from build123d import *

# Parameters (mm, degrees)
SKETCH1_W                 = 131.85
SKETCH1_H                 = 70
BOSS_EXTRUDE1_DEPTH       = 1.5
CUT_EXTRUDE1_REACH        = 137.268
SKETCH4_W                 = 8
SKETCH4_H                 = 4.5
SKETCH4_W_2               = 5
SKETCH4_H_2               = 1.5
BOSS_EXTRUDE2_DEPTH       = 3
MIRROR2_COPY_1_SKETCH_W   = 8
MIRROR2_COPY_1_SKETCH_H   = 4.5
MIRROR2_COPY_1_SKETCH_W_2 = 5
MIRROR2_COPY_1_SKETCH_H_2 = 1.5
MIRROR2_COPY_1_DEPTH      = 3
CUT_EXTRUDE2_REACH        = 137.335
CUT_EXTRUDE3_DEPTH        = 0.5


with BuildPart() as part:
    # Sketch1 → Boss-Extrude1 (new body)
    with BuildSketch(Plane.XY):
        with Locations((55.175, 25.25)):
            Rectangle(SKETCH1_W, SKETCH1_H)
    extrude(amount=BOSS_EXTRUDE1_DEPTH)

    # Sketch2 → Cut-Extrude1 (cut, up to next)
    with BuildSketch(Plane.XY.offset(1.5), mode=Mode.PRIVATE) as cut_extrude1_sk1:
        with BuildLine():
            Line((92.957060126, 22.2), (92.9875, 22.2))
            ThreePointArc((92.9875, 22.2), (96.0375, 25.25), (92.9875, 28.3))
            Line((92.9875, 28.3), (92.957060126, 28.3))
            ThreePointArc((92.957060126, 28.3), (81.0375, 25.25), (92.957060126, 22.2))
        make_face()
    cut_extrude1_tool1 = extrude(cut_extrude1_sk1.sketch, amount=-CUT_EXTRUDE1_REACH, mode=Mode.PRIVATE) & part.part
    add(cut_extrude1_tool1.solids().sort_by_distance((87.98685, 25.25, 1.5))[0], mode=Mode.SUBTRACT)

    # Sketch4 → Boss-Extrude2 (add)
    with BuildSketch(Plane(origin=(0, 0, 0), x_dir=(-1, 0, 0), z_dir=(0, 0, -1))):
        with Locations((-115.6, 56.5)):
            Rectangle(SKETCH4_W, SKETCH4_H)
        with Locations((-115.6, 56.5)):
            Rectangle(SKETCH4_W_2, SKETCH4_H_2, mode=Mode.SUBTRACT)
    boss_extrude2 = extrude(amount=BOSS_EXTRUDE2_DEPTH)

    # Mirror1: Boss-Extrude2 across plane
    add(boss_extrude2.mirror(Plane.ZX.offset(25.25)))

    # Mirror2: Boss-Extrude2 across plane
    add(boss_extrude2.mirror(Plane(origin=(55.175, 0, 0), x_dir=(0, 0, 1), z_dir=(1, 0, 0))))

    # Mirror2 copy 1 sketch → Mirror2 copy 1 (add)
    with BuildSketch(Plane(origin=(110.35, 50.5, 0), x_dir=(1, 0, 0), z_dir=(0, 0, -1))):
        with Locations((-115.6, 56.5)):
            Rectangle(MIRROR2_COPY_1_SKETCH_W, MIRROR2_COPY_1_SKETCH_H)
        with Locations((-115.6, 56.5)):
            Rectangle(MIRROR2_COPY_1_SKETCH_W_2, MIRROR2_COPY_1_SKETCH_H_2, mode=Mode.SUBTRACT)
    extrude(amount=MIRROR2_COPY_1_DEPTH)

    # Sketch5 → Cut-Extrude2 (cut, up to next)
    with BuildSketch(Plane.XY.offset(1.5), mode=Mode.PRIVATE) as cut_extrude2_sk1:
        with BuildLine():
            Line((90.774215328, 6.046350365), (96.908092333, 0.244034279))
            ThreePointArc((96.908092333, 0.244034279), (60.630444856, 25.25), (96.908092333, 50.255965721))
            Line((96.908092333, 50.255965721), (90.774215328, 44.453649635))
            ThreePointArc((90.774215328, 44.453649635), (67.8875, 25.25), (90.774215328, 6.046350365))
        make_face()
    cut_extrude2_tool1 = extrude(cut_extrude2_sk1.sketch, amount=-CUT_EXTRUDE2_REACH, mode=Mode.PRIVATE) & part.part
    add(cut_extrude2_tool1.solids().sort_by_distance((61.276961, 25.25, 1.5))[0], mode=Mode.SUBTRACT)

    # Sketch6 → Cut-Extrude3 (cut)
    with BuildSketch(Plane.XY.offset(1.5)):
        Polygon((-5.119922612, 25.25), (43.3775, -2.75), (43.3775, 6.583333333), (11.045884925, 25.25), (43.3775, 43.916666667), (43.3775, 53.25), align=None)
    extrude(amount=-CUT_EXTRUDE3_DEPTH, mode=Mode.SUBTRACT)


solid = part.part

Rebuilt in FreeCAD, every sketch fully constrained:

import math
import FreeCAD as App
import Part
import Sketcher
from FreeCAD import Vector
Q = App.Units.Quantity

doc = App.newDocument("Part")
params = doc.addObject("Spreadsheet::Sheet", "Params")
for row, (alias, value) in enumerate([
    ("sketch1_height", "70 mm"),
    ("sketch1_width", "131.85 mm"),
    ("pad1_length", "1.5 mm"),
    ("sketch2_radius", "3.05 mm"),
    ("sketch2_radius2", "6.35 mm"),
    ("sketch3_width", "8 mm"),
    ("sketch3_width2", "5 mm"),
    ("sketch3_height", "4.5 mm"),
    ("sketch3_height2", "1.5 mm"),
    ("pad2_length", "3 mm"),
    ("sketch4_width", "8 mm"),
    ("sketch4_width2", "5 mm"),
    ("sketch4_height", "4.5 mm"),
    ("sketch4_height2", "1.5 mm"),
    ("pad3_length", "3 mm"),
    ("sketch5_radius", "19.5 mm"),
    ("sketch6_length", "56 mm"),
    ("pocket3_length", "0.5 mm"),
], start=1):
    params.set(f"A{row}", alias)
    params.set(f"B{row}", "=" + value)
    params.setAlias(f"B{row}", alias)

body = doc.addObject("PartDesign::Body", "Body")

sketch1 = body.newObject("Sketcher::SketchObject", "Sketch")
sketch1.AttachmentSupport = (doc.getObject("XY_Plane"), [""])
sketch1.MapMode = "FlatFace"
sketch1.addGeometry([
    Part.LineSegment(Vector(-10.75, 60.25, 0), Vector(-10.75, -9.75, 0)),
    Part.LineSegment(Vector(-10.75, -9.75, 0), Vector(121.1, -9.75, 0)),
    Part.LineSegment(Vector(121.1, -9.75, 0), Vector(121.1, 60.25, 0)),
    Part.LineSegment(Vector(121.1, 60.25, 0), Vector(-10.75, 60.25, 0)),
], False)
sketch1.addConstraint([
    Sketcher.Constraint("Coincident", 0, 2, 1, 1),
    Sketcher.Constraint("Coincident", 1, 2, 2, 1),
    Sketcher.Constraint("Coincident", 2, 2, 3, 1),
    Sketcher.Constraint("Coincident", 3, 2, 0, 1),
    Sketcher.Constraint("Vertical", 0),
    Sketcher.Constraint("Horizontal", 1),
    Sketcher.Constraint("Vertical", 2),
    Sketcher.Constraint("Horizontal", 3),
    Sketcher.Constraint("DistanceY", 0, 2, 0, 1, 70.0),
    Sketcher.Constraint("DistanceX", 1, 1, 1, 2, 131.85),
    Sketcher.Constraint("DistanceX", -1, 1, 1, 2, 121.1),
    Sketcher.Constraint("DistanceY", 0, 2, -1, 1, 9.75),
])
sketch1.setExpression("Constraints[8]", "Params.sketch1_height")
sketch1.setExpression("Constraints[9]", "Params.sketch1_width")
pad1 = body.newObject("PartDesign::Pad", "Pad")
pad1.Profile = sketch1
pad1.setExpression("Length", "Params.pad1_length")

sketch2 = body.newObject("Sketcher::SketchObject", "Sketch001")
sketch2.AttachmentSupport = (doc.getObject("XY_Plane"), [""])
sketch2.MapMode = "FlatFace"
sketch2.AttachmentOffset = App.Placement(Vector(0, 0, 1.5), App.Rotation())
sketch2.addGeometry([
    Part.LineSegment(Vector(92.95706, 22.2, 0), Vector(92.9875, 22.2, 0)),
    Part.ArcOfCircle(Part.Circle(Vector(92.9875, 25.25, 0), Vector(0, 0, 1), 3.05), math.radians(-90), math.radians(90)),
    Part.LineSegment(Vector(92.9875, 28.3, 0), Vector(92.95706, 28.3, 0)),
    Part.ArcOfCircle(Part.Circle(Vector(87.3875, 25.25, 0), Vector(0, 0, 1), 6.35), math.radians(28.705975), math.radians(331.294025)),
], False)
sketch2.addConstraint([
    Sketcher.Constraint("Tangent", 0, 2, 1, 1),
    Sketcher.Constraint("Tangent", 1, 2, 2, 1),
    Sketcher.Constraint("Coincident", 2, 2, 3, 1),
    Sketcher.Constraint("Coincident", 3, 2, 0, 1),
    Sketcher.Constraint("Horizontal", 0),
    Sketcher.Constraint("Horizontal", 2),
    Sketcher.Constraint("Horizontal", 1, 3, 3, 3),
    Sketcher.Constraint("Radius", 1, 3.05),
    Sketcher.Constraint("Radius", 3, 6.35),
    Sketcher.Constraint("DistanceY", -1, 1, 0, 2, 22.2),
    Sketcher.Constraint("DistanceX", 3, 3, 1, 3, 5.6),
    Sketcher.Constraint("DistanceX", -1, 1, 1, 3, 92.9875),
])
sketch2.setExpression("Constraints[7]", "Params.sketch2_radius")
sketch2.setExpression("Constraints[8]", "Params.sketch2_radius2")
pocket1 = body.newObject("PartDesign::Pocket", "Pocket")
pocket1.Profile = sketch2
pocket1.Type = "UpToFirst"

sketch3 = body.newObject("Sketcher::SketchObject", "Sketch002")
sketch3.AttachmentSupport = (doc.getObject("XY_Plane"), [""])
sketch3.MapMode = "FlatFace"
sketch3.addGeometry([
    Part.LineSegment(Vector(119.6, 58.75, 0), Vector(119.6, 54.25, 0)),
    Part.LineSegment(Vector(119.6, 54.25, 0), Vector(111.6, 54.25, 0)),
    Part.LineSegment(Vector(111.6, 54.25, 0), Vector(111.6, 58.75, 0)),
    Part.LineSegment(Vector(111.6, 58.75, 0), Vector(119.6, 58.75, 0)),
    Part.LineSegment(Vector(113.1, 55.75, 0), Vector(118.1, 55.75, 0)),
    Part.LineSegment(Vector(118.1, 55.75, 0), Vector(118.1, 57.25, 0)),
    Part.LineSegment(Vector(118.1, 57.25, 0), Vector(113.1, 57.25, 0)),
    Part.LineSegment(Vector(113.1, 57.25, 0), Vector(113.1, 55.75, 0)),
], False)
sketch3.addConstraint([
    Sketcher.Constraint("Coincident", 0, 2, 1, 1),
    Sketcher.Constraint("Coincident", 1, 2, 2, 1),
    Sketcher.Constraint("Coincident", 2, 2, 3, 1),
    Sketcher.Constraint("Coincident", 3, 2, 0, 1),
    Sketcher.Constraint("Coincident", 4, 2, 5, 1),
    Sketcher.Constraint("Coincident", 5, 2, 6, 1),
    Sketcher.Constraint("Coincident", 6, 2, 7, 1),
    Sketcher.Constraint("Coincident", 7, 2, 4, 1),
    Sketcher.Constraint("Vertical", 0),
    Sketcher.Constraint("Horizontal", 1),
    Sketcher.Constraint("Vertical", 2),
    Sketcher.Constraint("Horizontal", 3),
    Sketcher.Constraint("Horizontal", 4),
    Sketcher.Constraint("Vertical", 5),
    Sketcher.Constraint("Horizontal", 6),
    Sketcher.Constraint("Vertical", 7),
    Sketcher.Constraint("DistanceX", 1, 2, 1, 1, 8.0),
    Sketcher.Constraint("DistanceX", 4, 1, 4, 2, 5.0),
    Sketcher.Constraint("DistanceY", 0, 2, 0, 1, 4.5),
    Sketcher.Constraint("DistanceY", 5, 1, 5, 2, 1.5),
    Sketcher.Constraint("DistanceY", 4, 2, 3, 2, 3.0),
    Sketcher.Constraint("DistanceX", -1, 1, 0, 2, 119.6),
    Sketcher.Constraint("DistanceX", -1, 1, 4, 2, 118.1),
    Sketcher.Constraint("DistanceY", -1, 1, 0, 2, 54.25),
])
sketch3.setExpression("Constraints[16]", "Params.sketch3_width")
sketch3.setExpression("Constraints[17]", "Params.sketch3_width2")
sketch3.setExpression("Constraints[18]", "Params.sketch3_height")
sketch3.setExpression("Constraints[19]", "Params.sketch3_height2")
pad2 = body.newObject("PartDesign::Pad", "Pad001")
pad2.Profile = sketch3
pad2.setExpression("Length", "Params.pad2_length")
pad2.Reversed = True
doc.recompute()

datumplane = body.newObject("PartDesign::Plane", "DatumPlane")
datumplane.AttachmentSupport = (doc.getObject("XZ_Plane"), [""])
datumplane.MapMode = "FlatFace"
datumplane.AttachmentOffset = App.Placement(Vector(0, 0, -25.25), App.Rotation())
mirrored = body.newObject("PartDesign::Mirrored", "Mirrored")
mirrored.Originals = [pad2]
mirrored.MirrorPlane = (datumplane, [""])
body.Tip = mirrored
doc.recompute()

datumplane2 = body.newObject("PartDesign::Plane", "DatumPlane001")
datumplane2.AttachmentSupport = (doc.getObject("YZ_Plane"), [""])
datumplane2.MapMode = "FlatFace"
datumplane2.AttachmentOffset = App.Placement(Vector(0, 0, 55.175), App.Rotation())
mirrored2 = body.newObject("PartDesign::Mirrored", "Mirrored001")
mirrored2.Originals = [pad2]
mirrored2.MirrorPlane = (datumplane2, [""])
body.Tip = mirrored2

sketch4 = body.newObject("Sketcher::SketchObject", "Sketch003")
sketch4.AttachmentSupport = (doc.getObject("XY_Plane"), [""])
sketch4.MapMode = "FlatFace"
sketch4.addGeometry([
    Part.LineSegment(Vector(-9.25, -8.25, 0), Vector(-9.25, -3.75, 0)),
    Part.LineSegment(Vector(-9.25, -3.75, 0), Vector(-1.25, -3.75, 0)),
    Part.LineSegment(Vector(-1.25, -3.75, 0), Vector(-1.25, -8.25, 0)),
    Part.LineSegment(Vector(-1.25, -8.25, 0), Vector(-9.25, -8.25, 0)),
    Part.LineSegment(Vector(-2.75, -5.25, 0), Vector(-7.75, -5.25, 0)),
    Part.LineSegment(Vector(-7.75, -5.25, 0), Vector(-7.75, -6.75, 0)),
    Part.LineSegment(Vector(-7.75, -6.75, 0), Vector(-2.75, -6.75, 0)),
    Part.LineSegment(Vector(-2.75, -6.75, 0), Vector(-2.75, -5.25, 0)),
], False)
sketch4.addConstraint([
    Sketcher.Constraint("Coincident", 0, 2, 1, 1),
    Sketcher.Constraint("Coincident", 1, 2, 2, 1),
    Sketcher.Constraint("Coincident", 2, 2, 3, 1),
    Sketcher.Constraint("Coincident", 3, 2, 0, 1),
    Sketcher.Constraint("Coincident", 4, 2, 5, 1),
    Sketcher.Constraint("Coincident", 5, 2, 6, 1),
    Sketcher.Constraint("Coincident", 6, 2, 7, 1),
    Sketcher.Constraint("Coincident", 7, 2, 4, 1),
    Sketcher.Constraint("Vertical", 0),
    Sketcher.Constraint("Horizontal", 1),
    Sketcher.Constraint("Vertical", 2),
    Sketcher.Constraint("Horizontal", 3),
    Sketcher.Constraint("Horizontal", 4),
    Sketcher.Constraint("Vertical", 5),
    Sketcher.Constraint("Horizontal", 6),
    Sketcher.Constraint("Vertical", 7),
    Sketcher.Constraint("DistanceX", 1, 1, 1, 2, 8.0),
    Sketcher.Constraint("DistanceX", 4, 2, 4, 1, 5.0),
    Sketcher.Constraint("DistanceY", 0, 1, 0, 2, 4.5),
    Sketcher.Constraint("DistanceY", 5, 2, 5, 1, 1.5),
    Sketcher.Constraint("DistanceY", 3, 2, 4, 2, 3.0),
    Sketcher.Constraint("DistanceX", 0, 2, 4, 2, 1.5),
    Sketcher.Constraint("DistanceX", 0, 2, -1, 1, 9.25),
    Sketcher.Constraint("DistanceY", 0, 2, -1, 1, 3.75),
])
sketch4.setExpression("Constraints[16]", "Params.sketch4_width")
sketch4.setExpression("Constraints[17]", "Params.sketch4_width2")
sketch4.setExpression("Constraints[18]", "Params.sketch4_height")
sketch4.setExpression("Constraints[19]", "Params.sketch4_height2")
pad3 = body.newObject("PartDesign::Pad", "Pad002")
pad3.Profile = sketch4
pad3.setExpression("Length", "Params.pad3_length")
pad3.Reversed = True

sketch5 = body.newObject("Sketcher::SketchObject", "Sketch004")
sketch5.AttachmentSupport = (doc.getObject("XY_Plane"), [""])
sketch5.MapMode = "FlatFace"
sketch5.AttachmentOffset = App.Placement(Vector(0, 0, 1.5), App.Rotation())
sketch5.addGeometry([
    Part.LineSegment(Vector(96.908092, 0.244034, 0), Vector(90.774215, 6.04635, 0)),
    Part.ArcOfCircle(Part.Circle(Vector(87.3875, 25.25, 0), Vector(0, 0, 1), 19.5), math.radians(79.998282), math.radians(280.001718)),
    Part.LineSegment(Vector(90.774215, 44.45365, 0), Vector(96.908092, 50.255966, 0)),
    Part.ArcOfCircle(Part.Circle(Vector(87.3875, 25.25, 0), Vector(0, 0, 1), 26.757055), math.radians(69.156527), math.radians(290.843473)),
], False)
sketch5.addConstraint([
    Sketcher.Constraint("Coincident", 0, 2, 1, 2),
    Sketcher.Constraint("Coincident", 1, 1, 2, 1),
    Sketcher.Constraint("Coincident", 2, 2, 3, 1),
    Sketcher.Constraint("Coincident", 3, 2, 0, 1),
    Sketcher.Constraint("Coincident", 3, 3, 1, 3),
    Sketcher.Constraint("Vertical", 0, 2, 1, 1),
    Sketcher.Constraint("Vertical", 2, 2, 3, 2),
    Sketcher.Constraint("Radius", 1, 19.5),
    Sketcher.Constraint("DistanceY", -1, 1, 1, 3, 25.25),
    Sketcher.Constraint("Radius", 3, 26.757055),
    Sketcher.Constraint("DistanceX", -1, 1, 1, 3, 87.3875),
    Sketcher.Constraint("DistanceY", 0, 2, 1, 1, 38.407299),
    Sketcher.Constraint("Distance", 0, 8.443419),
])
sketch5.setExpression("Constraints[7]", "Params.sketch5_radius")
pocket2 = body.newObject("PartDesign::Pocket", "Pocket001")
pocket2.Profile = sketch5
pocket2.Type = "UpToFirst"

sketch6 = body.newObject("Sketcher::SketchObject", "Sketch005")
sketch6.AttachmentSupport = (doc.getObject("XY_Plane"), [""])
sketch6.MapMode = "FlatFace"
sketch6.AttachmentOffset = App.Placement(Vector(0, 0, 1.5), App.Rotation())
sketch6.addGeometry([
    Part.LineSegment(Vector(-5.119923, 25.25, 0), Vector(43.3775, -2.75, 0)),
    Part.LineSegment(Vector(43.3775, -2.75, 0), Vector(43.3775, 6.583333, 0)),
    Part.LineSegment(Vector(43.3775, 6.583333, 0), Vector(11.045885, 25.25, 0)),
    Part.LineSegment(Vector(11.045885, 25.25, 0), Vector(43.3775, 43.916667, 0)),
    Part.LineSegment(Vector(43.3775, 43.916667, 0), Vector(43.3775, 53.25, 0)),
    Part.LineSegment(Vector(43.3775, 53.25, 0), Vector(-5.119923, 25.25, 0)),
], False)
sketch6.addConstraint([
    Sketcher.Constraint("Coincident", 0, 2, 1, 1),
    Sketcher.Constraint("Coincident", 1, 2, 2, 1),
    Sketcher.Constraint("Coincident", 2, 2, 3, 1),
    Sketcher.Constraint("Coincident", 3, 2, 4, 1),
    Sketcher.Constraint("Coincident", 4, 2, 5, 1),
    Sketcher.Constraint("Coincident", 5, 2, 0, 1),
    Sketcher.Constraint("Vertical", 1),
    Sketcher.Constraint("Vertical", 4),
    Sketcher.Constraint("Parallel", 0, 2),
    Sketcher.Constraint("Parallel", 3, 5),
    Sketcher.Constraint("Horizontal", 2, 2, 5, 2),
    Sketcher.Constraint("Vertical", 1, 2, 3, 2),
    Sketcher.Constraint("Equal", 1, 4),
    Sketcher.Constraint("Angle", 0, Q("-30 deg")),
    Sketcher.Constraint("Distance", 0, 56.0),
    Sketcher.Constraint("DistanceY", 0, 2, -1, 1, 2.75),
    Sketcher.Constraint("DistanceX", -1, 1, 0, 2, 43.3775),
    Sketcher.Constraint("DistanceY", 1, 1, 1, 2, 9.333333),
])
sketch6.setExpression("Constraints[14]", "Params.sketch6_length")
pocket3 = body.newObject("PartDesign::Pocket", "Pocket002")
pocket3.Profile = sketch6
pocket3.setExpression("Length", "Params.pocket3_length")

doc.recompute()
